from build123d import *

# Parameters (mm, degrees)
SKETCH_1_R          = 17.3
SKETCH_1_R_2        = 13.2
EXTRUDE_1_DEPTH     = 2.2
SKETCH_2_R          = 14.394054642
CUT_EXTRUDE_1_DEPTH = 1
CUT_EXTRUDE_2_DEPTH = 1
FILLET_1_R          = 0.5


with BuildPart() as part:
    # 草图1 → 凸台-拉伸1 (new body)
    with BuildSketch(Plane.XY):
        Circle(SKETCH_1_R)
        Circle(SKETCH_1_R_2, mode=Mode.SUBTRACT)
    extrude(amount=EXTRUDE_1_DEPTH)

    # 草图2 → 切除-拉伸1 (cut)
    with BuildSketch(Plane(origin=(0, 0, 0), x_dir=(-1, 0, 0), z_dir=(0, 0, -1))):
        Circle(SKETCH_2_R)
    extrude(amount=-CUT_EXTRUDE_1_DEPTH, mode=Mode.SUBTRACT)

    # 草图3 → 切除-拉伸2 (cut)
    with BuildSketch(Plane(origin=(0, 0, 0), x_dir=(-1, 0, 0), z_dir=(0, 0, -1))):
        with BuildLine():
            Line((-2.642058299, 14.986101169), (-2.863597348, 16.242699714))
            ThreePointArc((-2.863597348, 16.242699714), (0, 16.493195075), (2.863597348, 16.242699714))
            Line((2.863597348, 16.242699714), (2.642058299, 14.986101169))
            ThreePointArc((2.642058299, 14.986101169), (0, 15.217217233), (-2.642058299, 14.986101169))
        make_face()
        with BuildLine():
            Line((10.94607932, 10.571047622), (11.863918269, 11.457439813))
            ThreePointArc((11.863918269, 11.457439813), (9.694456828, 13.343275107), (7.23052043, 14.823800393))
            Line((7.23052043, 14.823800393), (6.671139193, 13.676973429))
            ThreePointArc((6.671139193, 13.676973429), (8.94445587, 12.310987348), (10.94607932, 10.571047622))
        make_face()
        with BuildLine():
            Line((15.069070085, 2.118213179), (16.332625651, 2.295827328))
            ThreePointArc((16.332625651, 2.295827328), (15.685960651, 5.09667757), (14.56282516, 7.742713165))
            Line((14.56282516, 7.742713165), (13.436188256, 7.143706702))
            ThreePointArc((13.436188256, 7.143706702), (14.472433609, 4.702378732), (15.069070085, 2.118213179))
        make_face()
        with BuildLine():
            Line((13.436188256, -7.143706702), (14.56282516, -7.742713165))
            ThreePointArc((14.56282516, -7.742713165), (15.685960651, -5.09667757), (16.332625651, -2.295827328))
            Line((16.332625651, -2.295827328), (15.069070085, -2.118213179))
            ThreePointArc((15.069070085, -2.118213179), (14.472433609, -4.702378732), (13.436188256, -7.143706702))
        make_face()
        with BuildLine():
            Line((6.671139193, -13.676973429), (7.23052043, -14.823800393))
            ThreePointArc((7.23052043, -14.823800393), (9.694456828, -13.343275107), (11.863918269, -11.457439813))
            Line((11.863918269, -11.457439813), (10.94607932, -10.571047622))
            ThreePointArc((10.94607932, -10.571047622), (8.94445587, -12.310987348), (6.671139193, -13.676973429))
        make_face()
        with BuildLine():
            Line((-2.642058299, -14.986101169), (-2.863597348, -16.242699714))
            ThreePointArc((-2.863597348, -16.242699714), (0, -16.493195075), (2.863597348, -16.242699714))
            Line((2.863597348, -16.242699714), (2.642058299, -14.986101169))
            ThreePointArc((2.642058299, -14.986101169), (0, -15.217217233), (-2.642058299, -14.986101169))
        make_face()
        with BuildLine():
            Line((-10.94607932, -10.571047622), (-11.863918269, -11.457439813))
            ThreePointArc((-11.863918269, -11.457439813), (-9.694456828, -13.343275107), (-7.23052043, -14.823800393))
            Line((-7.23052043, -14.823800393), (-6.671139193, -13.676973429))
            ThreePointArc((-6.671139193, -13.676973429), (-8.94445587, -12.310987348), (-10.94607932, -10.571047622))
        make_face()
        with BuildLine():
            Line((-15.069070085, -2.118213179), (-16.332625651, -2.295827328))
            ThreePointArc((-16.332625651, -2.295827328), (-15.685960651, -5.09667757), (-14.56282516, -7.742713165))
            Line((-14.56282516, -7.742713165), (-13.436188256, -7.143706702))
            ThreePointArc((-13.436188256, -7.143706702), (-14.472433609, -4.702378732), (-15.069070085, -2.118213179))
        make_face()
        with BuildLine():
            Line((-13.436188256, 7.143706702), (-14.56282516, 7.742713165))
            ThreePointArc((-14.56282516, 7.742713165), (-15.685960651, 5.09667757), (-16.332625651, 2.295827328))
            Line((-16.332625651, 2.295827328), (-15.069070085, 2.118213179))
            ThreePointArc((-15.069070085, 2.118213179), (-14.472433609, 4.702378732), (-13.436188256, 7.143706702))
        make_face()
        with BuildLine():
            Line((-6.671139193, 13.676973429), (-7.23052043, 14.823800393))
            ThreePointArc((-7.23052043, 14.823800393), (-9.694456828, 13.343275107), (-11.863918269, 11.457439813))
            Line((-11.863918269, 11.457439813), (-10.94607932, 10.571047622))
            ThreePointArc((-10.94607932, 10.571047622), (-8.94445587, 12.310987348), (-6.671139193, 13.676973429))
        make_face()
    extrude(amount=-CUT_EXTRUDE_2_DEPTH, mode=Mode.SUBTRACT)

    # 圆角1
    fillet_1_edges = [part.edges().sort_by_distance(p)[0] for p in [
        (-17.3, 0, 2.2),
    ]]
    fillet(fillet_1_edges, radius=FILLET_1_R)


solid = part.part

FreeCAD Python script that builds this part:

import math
import FreeCAD as App
import Part
import Sketcher
from FreeCAD import Vector
Q = App.Units.Quantity


def edges_at(feature, points):
    """Names of the edges that pass closest to the given points."""
    edges = feature.Shape.Edges
    near = lambda p: min(range(len(edges)), key=lambda i: edges[i].distToShape(Part.Vertex(*p))[0])
    return sorted({f"Edge{near(p) + 1}" for p in points})

doc = App.newDocument("Part")
body = doc.addObject("PartDesign::Body", "Body")

# Sketch on XY plane
sketch1 = body.newObject("Sketcher::SketchObject", "Sketch")
sketch1.AttachmentSupport = (doc.getObject("XY_Plane"), [""])
sketch1.MapMode = "FlatFace"
sketch1.addGeometry([
    Part.Circle(Vector(0, 0, 0), Vector(0, 0, 1), 17),
    Part.Circle(Vector(0, 0, 0), Vector(0, 0, 1), 13),
], False)
sketch1.addConstraint([
    Sketcher.Constraint("Coincident", 0, 3, -1, 1),
    Sketcher.Constraint("Coincident", 1, 3, -1, 1),
    Sketcher.Constraint("Diameter", 0, Q("34.6 mm")),
    Sketcher.Constraint("Diameter", 1, Q("26.4 mm")),
])
pad1 = body.newObject("PartDesign::Pad", "Pad")
pad1.Profile = sketch1
pad1.Length = 2.2

# Sketch on XY plane
sketch2 = body.newObject("Sketcher::SketchObject", "Sketch001")
sketch2.AttachmentSupport = (doc.getObject("XY_Plane"), [""])
sketch2.MapMode = "FlatFace"
sketch2.addGeometry(Part.Circle(Vector(0, 0, 0), Vector(0, 0, 1), 14), False)
sketch2.addConstraint([
    Sketcher.Constraint("Coincident", 0, 3, -1, 1),
    Sketcher.Constraint("Diameter", 0, Q("28.788109 mm")),
])
pocket1 = body.newObject("PartDesign::Pocket", "Pocket")
pocket1.Profile = sketch2
pocket1.Length = 1
pocket1.Reversed = True

# Sketch on XY plane
sketch3 = body.newObject("Sketcher::SketchObject", "Sketch002")
sketch3.AttachmentSupport = (doc.getObject("XY_Plane"), [""])
sketch3.MapMode = "FlatFace"
sketch3.addGeometry([
    Part.LineSegment(Vector(2.9, 16.2, 0), Vector(2.6, 15, 0)),  # 0
    Part.ArcOfCircle(Part.Circle(Vector(0, 0, 0), Vector(0, 0, 1), 15.2), math.radians(80), math.radians(100)),  # 1
    Part.LineSegment(Vector(-2.6, 15, 0), Vector(-2.9, 16.2, 0)),  # 2
    Part.ArcOfCircle(Part.Circle(Vector(0, 0, 0), Vector(0, 0, 1), 16.5), math.radians(80), math.radians(100)),  # 3
    Part.LineSegment(Vector(-10.9, 10.6, 0), Vector(-11.9, 11.5, 0)),  # 4
    Part.ArcOfCircle(Part.Circle(Vector(0, 0, 0), Vector(0, 0, 1), 16.5), math.radians(116), math.radians(136)),  # 5
    Part.LineSegment(Vector(-7.2, 14.8, 0), Vector(-6.7, 13.7, 0)),  # 6
    Part.ArcOfCircle(Part.Circle(Vector(0, 0, 0), Vector(0, 0, 1), 15.2), math.radians(116), math.radians(136)),  # 7
    Part.LineSegment(Vector(-15.1, 2.1, 0), Vector(-16.3, 2.3, 0)),  # 8
    Part.ArcOfCircle(Part.Circle(Vector(0, 0, 0), Vector(0, 0, 1), 16.5), math.radians(152), math.radians(172)),  # 9
    Part.LineSegment(Vector(-14.6, 7.7, 0), Vector(-13.4, 7.1, 0)),  # 10
    Part.ArcOfCircle(Part.Circle(Vector(0, 0, 0), Vector(0, 0, 1), 15.2), math.radians(152), math.radians(172)),  # 11
    Part.LineSegment(Vector(-13.4, -7.1, 0), Vector(-14.6, -7.7, 0)),  # 12
    Part.ArcOfCircle(Part.Circle(Vector(0, 0, 0), Vector(0, 0, 1), 16.5), math.radians(-172), math.radians(-152)),  # 13
    Part.LineSegment(Vector(-16.3, -2.3, 0), Vector(-15.1, -2.1, 0)),  # 14
    Part.ArcOfCircle(Part.Circle(Vector(0, 0, 0), Vector(0, 0, 1), 15.2), math.radians(-172), math.radians(-152)),  # 15
    Part.LineSegment(Vector(-6.7, -13.7, 0), Vector(-7.2, -14.8, 0)),  # 16
    Part.ArcOfCircle(Part.Circle(Vector(0, 0, 0), Vector(0, 0, 1), 16.5), math.radians(-136), math.radians(-116)),  # 17
    Part.LineSegment(Vector(-11.9, -11.5, 0), Vector(-10.9, -10.6, 0)),  # 18
    Part.ArcOfCircle(Part.Circle(Vector(0, 0, 0), Vector(0, 0, 1), 15.2), math.radians(-136), math.radians(-116)),  # 19
    Part.LineSegment(Vector(2.6, -15, 0), Vector(2.9, -16.2, 0)),  # 20
    Part.ArcOfCircle(Part.Circle(Vector(0, 0, 0), Vector(0, 0, 1), 16.5), math.radians(-100), math.radians(-80)),  # 21
    Part.LineSegment(Vector(-2.9, -16.2, 0), Vector(-2.6, -15, 0)),  # 22
    Part.ArcOfCircle(Part.Circle(Vector(0, 0, 0), Vector(0, 0, 1), 15.2), math.radians(-100), math.radians(-80)),  # 23
    Part.LineSegment(Vector(10.9, -10.6, 0), Vector(11.9, -11.5, 0)),  # 24
    Part.ArcOfCircle(Part.Circle(Vector(0, 0, 0), Vector(0, 0, 1), 16.5), math.radians(-64), math.radians(-44)),  # 25
    Part.LineSegment(Vector(7.2, -14.8, 0), Vector(6.7, -13.7, 0)),  # 26
    Part.ArcOfCircle(Part.Circle(Vector(0, 0, 0), Vector(0, 0, 1), 15.2), math.radians(-64), math.radians(-44)),  # 27
    Part.LineSegment(Vector(15.1, -2.1, 0), Vector(16.3, -2.3, 0)),  # 28
    Part.ArcOfCircle(Part.Circle(Vector(0, 0, 0), Vector(0, 0, 1), 16.5), math.radians(-28), math.radians(-8)),  # 29
    Part.LineSegment(Vector(14.6, -7.7, 0), Vector(13.4, -7.1, 0)),  # 30
    Part.ArcOfCircle(Part.Circle(Vector(0, 0, 0), Vector(0, 0, 1), 15.2), math.radians(-28), math.radians(-8)),  # 31
    Part.LineSegment(Vector(13.4, 7.1, 0), Vector(14.6, 7.7, 0)),  # 32
    Part.ArcOfCircle(Part.Circle(Vector(0, 0, 0), Vector(0, 0, 1), 16.5), math.radians(8), math.radians(28)),  # 33
    Part.LineSegment(Vector(16.3, 2.3, 0), Vector(15.1, 2.1, 0)),  # 34
    Part.ArcOfCircle(Part.Circle(Vector(0, 0, 0), Vector(0, 0, 1), 15.2), math.radians(8), math.radians(28)),  # 35
    Part.LineSegment(Vector(6.7, 13.7, 0), Vector(7.2, 14.8, 0)),  # 36
    Part.ArcOfCircle(Part.Circle(Vector(0, 0, 0), Vector(0, 0, 1), 16.5), math.radians(44), math.radians(64)),  # 37
    Part.LineSegment(Vector(11.9, 11.5, 0), Vector(10.9, 10.6, 0)),  # 38
    Part.ArcOfCircle(Part.Circle(Vector(0, 0, 0), Vector(0, 0, 1), 15.2), math.radians(44), math.radians(64)),  # 39
], False)
sketch3.addConstraint([
    Sketcher.Constraint("Coincident", 0, 2, 1, 1),
    Sketcher.Constraint("Coincident", 1, 2, 2, 1),
    Sketcher.Constraint("Coincident", 2, 2, 3, 2),
    Sketcher.Constraint("Coincident", 3, 1, 0, 1),
    Sketcher.Constraint("Coincident", 4, 2, 5, 2),
    Sketcher.Constraint("Coincident", 5, 1, 6, 1),
    Sketcher.Constraint("Coincident", 6, 2, 7, 1),
    Sketcher.Constraint("Coincident", 7, 2, 4, 1),
    Sketcher.Constraint("Coincident", 8, 2, 9, 2),
    Sketcher.Constraint("Coincident", 9, 1, 10, 1),
    Sketcher.Constraint("Coincident", 10, 2, 11, 1),
    Sketcher.Constraint("Coincident", 11, 2, 8, 1),
    Sketcher.Constraint("Coincident", 12, 2, 13, 2),
    Sketcher.Constraint("Coincident", 13, 1, 14, 1),
    Sketcher.Constraint("Coincident", 14, 2, 15, 1),
    Sketcher.Constraint("Coincident", 15, 2, 12, 1),
    Sketcher.Constraint("Coincident", 16, 2, 17, 2),
    Sketcher.Constraint("Coincident", 17, 1, 18, 1),
    Sketcher.Constraint("Coincident", 18, 2, 19, 1),
    Sketcher.Constraint("Coincident", 19, 2, 16, 1),
    Sketcher.Constraint("Coincident", 20, 2, 21, 2),
    Sketcher.Constraint("Coincident", 21, 1, 22, 1),
    Sketcher.Constraint("Coincident", 22, 2, 23, 1),
    Sketcher.Constraint("Coincident", 23, 2, 20, 1),
    Sketcher.Constraint("Coincident", 24, 2, 25, 2),
    Sketcher.Constraint("Coincident", 25, 1, 26, 1),
    Sketcher.Constraint("Coincident", 26, 2, 27, 1),
    Sketcher.Constraint("Coincident", 27, 2, 24, 1),
    Sketcher.Constraint("Coincident", 28, 2, 29, 2),
    Sketcher.Constraint("Coincident", 29, 1, 30, 1),
    Sketcher.Constraint("Coincident", 30, 2, 31, 1),
    Sketcher.Constraint("Coincident", 31, 2, 28, 1),
    Sketcher.Constraint("Coincident", 32, 2, 33, 2),
    Sketcher.Constraint("Coincident", 33, 1, 34, 1),
    Sketcher.Constraint("Coincident", 34, 2, 35, 1),
    Sketcher.Constraint("Coincident", 35, 2, 32, 1),
    Sketcher.Constraint("Coincident", 36, 2, 37, 2),
    Sketcher.Constraint("Coincident", 37, 1, 38, 1),
    Sketcher.Constraint("Coincident", 38, 2, 39, 1),
    Sketcher.Constraint("Coincident", 39, 2, 36, 1),
    Sketcher.Constraint("Coincident", 1, 3, -1, 1),
    Sketcher.Constraint("Coincident", 3, 3, -1, 1),
    Sketcher.Constraint("Coincident", 5, 3, -1, 1),
    Sketcher.Constraint("Coincident", 7, 3, -1, 1),
    Sketcher.Constraint("Coincident", 9, 3, -1, 1),
    Sketcher.Constraint("Coincident", 11, 3, -1, 1),
    Sketcher.Constraint("Coincident", 13, 3, -1, 1),
    Sketcher.Constraint("Coincident", 15, 3, -1, 1),
    Sketcher.Constraint("Coincident", 17, 3, -1, 1),
    Sketcher.Constraint("Coincident", 19, 3, -1, 1),
    Sketcher.Constraint("Coincident", 21, 3, -1, 1),
    Sketcher.Constraint("Coincident", 23, 3, -1, 1),
    Sketcher.Constraint("Coincident", 25, 3, -1, 1),
    Sketcher.Constraint("Coincident", 27, 3, -1, 1),
    Sketcher.Constraint("Coincident", 29, 3, -1, 1),
    Sketcher.Constraint("Coincident", 31, 3, -1, 1),
    Sketcher.Constraint("Coincident", 33, 3, -1, 1),
    Sketcher.Constraint("Coincident", 35, 3, -1, 1),
    Sketcher.Constraint("Coincident", 37, 3, -1, 1),
    Sketcher.Constraint("Coincident", 39, 3, -1, 1),
    Sketcher.Constraint("Equal", 3, 5),
    Sketcher.Constraint("Equal", 1, 7),
    Sketcher.Constraint("Equal", 5, 9),
    Sketcher.Constraint("Equal", 7, 11),
    Sketcher.Constraint("Equal", 9, 13),
    Sketcher.Constraint("Equal", 11, 15),
    Sketcher.Constraint("Equal", 13, 17),
    Sketcher.Constraint("Equal", 15, 19),
    Sketcher.Constraint("Equal", 17, 21),
    Sketcher.Constraint("Equal", 19, 23),
    Sketcher.Constraint("Equal", 21, 25),
    Sketcher.Constraint("Equal", 23, 27),
    Sketcher.Constraint("Equal", 25, 29),
    Sketcher.Constraint("Equal", 27, 31),
    Sketcher.Constraint("Equal", 29, 33),
    Sketcher.Constraint("Equal", 31, 35),
    Sketcher.Constraint("Equal", 33, 37),
    Sketcher.Constraint("Equal", 35, 39),
    Sketcher.Constraint("Parallel", 2, 20),
    Sketcher.Constraint("Parallel", 0, 22),
    Sketcher.Constraint("Parallel", 4, 24),
    Sketcher.Constraint("Parallel", 6, 26),
    Sketcher.Constraint("Parallel", 8, 28),
    Sketcher.Constraint("Parallel", 10, 30),
    Sketcher.Constraint("Parallel", 12, 32),
    Sketcher.Constraint("Parallel", 14, 34),
    Sketcher.Constraint("Parallel", 16, 36),
    Sketcher.Constraint("Parallel", 18, 38),
    Sketcher.Constraint("Horizontal", 0, 2, 1, 2),
    Sketcher.Constraint("Horizontal", 2, 2, 3, 1),
    Sketcher.Constraint("Horizontal", 20, 2, 21, 1),
    Sketcher.Constraint("Horizontal", 17, 1, 24, 2),
    Sketcher.Constraint("Horizontal", 16, 2, 25, 1),
    Sketcher.Constraint("Horizontal", 19, 2, 26, 2),
    Sketcher.Constraint("Horizontal", 18, 2, 27, 2),
    Sketcher.Constraint("Horizontal", 13, 1, 28, 2),
    Sketcher.Constraint("Horizontal", 12, 2, 29, 1),
    Sketcher.Constraint("Horizontal", 15, 2, 30, 2),
    Sketcher.Constraint("Horizontal", 14, 2, 31, 2),
    Sketcher.Constraint("Horizontal", 9, 1, 32, 2),
    Sketcher.Constraint("Horizontal", 8, 2, 33, 1),
    Sketcher.Constraint("Horizontal", 5, 1, 36, 2),
    Sketcher.Constraint("Horizontal", 4, 2, 37, 1),
    Sketcher.Constraint("Vertical", 9, 1, 12, 2),
    Sketcher.Constraint("Vertical", 8, 2, 13, 1),
    Sketcher.Constraint("Vertical", 5, 1, 16, 2),
    Sketcher.Constraint("Vertical", 4, 2, 17, 1),
    Sketcher.Constraint("Vertical", 3, 1, 20, 2),
    Sketcher.Constraint("Radius", 1, Q("15.217217 mm")),
    Sketcher.Constraint("Radius", 3, Q("16.493195 mm")),
    Sketcher.Constraint("DistanceY", -1, 1, 0, 2, Q("14.986101 mm")),
    Sketcher.Constraint("DistanceY", -1, 1, 2, 2, Q("16.2427 mm")),
    Sketcher.Constraint("DistanceY", -1, 1, 5, 1, Q("14.8238 mm")),
    Sketcher.Constraint("DistanceX", 8, 2, 9, 1, Q("1.7698 mm")),
    Sketcher.Constraint("DistanceY", 11, 2, 9, 1, Q("5.6245 mm")),
    Sketcher.Constraint("DistanceX", 4, 2, -1, 1, Q("11.863918 mm")),
    Sketcher.Constraint("DistanceX", 6, 2, -1, 1, Q("6.671139 mm")),
    Sketcher.Constraint("DistanceX", 7, 2, -1, 1, Q("10.946079 mm")),
    Sketcher.Constraint("DistanceX", 10, 2, -1, 1, Q("13.436188 mm")),
    Sketcher.Constraint("DistanceX", 11, 2, -1, 1, Q("15.06907 mm")),
])
pocket2 = body.newObject("PartDesign::Pocket", "Pocket001")
pocket2.Profile = sketch3
pocket2.Length = 1
pocket2.Reversed = True
doc.recompute()

fillet = body.newObject("PartDesign::Fillet", "Fillet")
fillet.Base = (pocket2, edges_at(pocket2, [(-17.3, 0, 2.2)]))
fillet.Radius = 0.5

doc.recompute()
